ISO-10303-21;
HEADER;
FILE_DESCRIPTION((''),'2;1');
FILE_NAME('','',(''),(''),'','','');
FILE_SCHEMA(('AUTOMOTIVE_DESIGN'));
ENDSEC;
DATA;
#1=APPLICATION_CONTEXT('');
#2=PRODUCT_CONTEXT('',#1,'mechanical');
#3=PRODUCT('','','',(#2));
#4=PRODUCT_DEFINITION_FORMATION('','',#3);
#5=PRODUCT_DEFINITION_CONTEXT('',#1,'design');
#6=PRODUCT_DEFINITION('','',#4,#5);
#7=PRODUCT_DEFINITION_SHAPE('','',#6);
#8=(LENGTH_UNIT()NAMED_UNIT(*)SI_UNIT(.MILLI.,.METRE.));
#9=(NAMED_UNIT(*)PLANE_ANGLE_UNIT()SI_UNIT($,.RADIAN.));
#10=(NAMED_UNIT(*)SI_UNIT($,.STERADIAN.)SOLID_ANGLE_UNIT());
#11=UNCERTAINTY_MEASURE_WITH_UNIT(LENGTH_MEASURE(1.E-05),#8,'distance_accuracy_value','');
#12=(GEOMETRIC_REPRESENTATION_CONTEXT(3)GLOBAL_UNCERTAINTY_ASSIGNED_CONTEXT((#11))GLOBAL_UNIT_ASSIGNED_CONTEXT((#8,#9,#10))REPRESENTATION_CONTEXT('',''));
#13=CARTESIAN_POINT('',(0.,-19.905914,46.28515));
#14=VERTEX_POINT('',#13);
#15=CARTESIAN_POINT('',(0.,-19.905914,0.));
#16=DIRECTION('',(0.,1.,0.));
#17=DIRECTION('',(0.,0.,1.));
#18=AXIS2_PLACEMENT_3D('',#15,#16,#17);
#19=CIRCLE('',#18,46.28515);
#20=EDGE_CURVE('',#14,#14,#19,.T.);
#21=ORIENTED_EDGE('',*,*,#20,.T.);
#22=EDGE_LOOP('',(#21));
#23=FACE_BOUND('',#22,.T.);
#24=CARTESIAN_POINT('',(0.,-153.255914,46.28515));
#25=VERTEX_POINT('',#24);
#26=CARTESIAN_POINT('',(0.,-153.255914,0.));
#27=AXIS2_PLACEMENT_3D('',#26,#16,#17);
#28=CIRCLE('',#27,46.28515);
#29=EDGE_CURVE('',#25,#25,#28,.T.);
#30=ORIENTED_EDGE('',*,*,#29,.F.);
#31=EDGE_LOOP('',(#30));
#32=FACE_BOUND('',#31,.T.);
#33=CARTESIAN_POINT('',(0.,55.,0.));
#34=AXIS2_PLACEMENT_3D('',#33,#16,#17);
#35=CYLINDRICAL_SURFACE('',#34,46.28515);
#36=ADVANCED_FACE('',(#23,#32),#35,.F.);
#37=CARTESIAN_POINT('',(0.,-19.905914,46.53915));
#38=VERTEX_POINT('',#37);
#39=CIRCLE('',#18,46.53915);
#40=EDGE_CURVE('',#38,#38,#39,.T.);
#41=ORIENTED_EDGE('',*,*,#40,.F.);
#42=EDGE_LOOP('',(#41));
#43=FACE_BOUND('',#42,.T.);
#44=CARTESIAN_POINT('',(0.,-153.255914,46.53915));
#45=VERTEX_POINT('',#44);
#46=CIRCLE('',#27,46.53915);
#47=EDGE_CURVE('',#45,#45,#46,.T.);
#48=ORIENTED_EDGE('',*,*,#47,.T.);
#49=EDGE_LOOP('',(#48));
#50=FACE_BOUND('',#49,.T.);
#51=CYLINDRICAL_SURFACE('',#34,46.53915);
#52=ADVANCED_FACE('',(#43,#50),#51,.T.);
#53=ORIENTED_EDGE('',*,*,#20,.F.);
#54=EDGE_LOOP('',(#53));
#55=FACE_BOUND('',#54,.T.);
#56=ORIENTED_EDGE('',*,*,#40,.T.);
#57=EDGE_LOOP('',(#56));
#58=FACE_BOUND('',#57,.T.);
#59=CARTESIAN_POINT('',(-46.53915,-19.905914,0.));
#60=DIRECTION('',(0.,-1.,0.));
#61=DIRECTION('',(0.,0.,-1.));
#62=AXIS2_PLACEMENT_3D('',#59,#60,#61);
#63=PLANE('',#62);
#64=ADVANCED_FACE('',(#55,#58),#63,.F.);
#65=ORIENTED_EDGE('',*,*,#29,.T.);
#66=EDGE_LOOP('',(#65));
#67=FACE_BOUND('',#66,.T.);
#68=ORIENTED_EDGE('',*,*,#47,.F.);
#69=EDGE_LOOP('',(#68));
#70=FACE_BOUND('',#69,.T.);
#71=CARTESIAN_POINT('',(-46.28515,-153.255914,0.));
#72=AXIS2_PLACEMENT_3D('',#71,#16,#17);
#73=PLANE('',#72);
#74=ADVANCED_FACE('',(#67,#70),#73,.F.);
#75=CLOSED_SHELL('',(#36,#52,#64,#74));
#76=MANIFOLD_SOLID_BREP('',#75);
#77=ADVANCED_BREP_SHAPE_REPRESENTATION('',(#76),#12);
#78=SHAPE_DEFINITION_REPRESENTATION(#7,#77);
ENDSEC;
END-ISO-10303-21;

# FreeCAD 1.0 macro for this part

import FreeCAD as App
import Part
import Sketcher
from FreeCAD import Vector
Q = App.Units.Quantity


def add_polygon(sketch, points):
    """Adds a closed chain of lines whose ends are joined by coincident constraints."""
    first, n = sketch.GeometryCount, len(points)
    for a, b in zip(points, points[1:] + points[:1]):
        sketch.addGeometry(Part.LineSegment(App.Vector(*a, 0), App.Vector(*b, 0)), False)
    for i in range(n):
        sketch.addConstraint(Sketcher.Constraint("Coincident", first + i, 2, first + (i + 1) % n, 1))

doc = App.newDocument("Part")
body = doc.addObject("PartDesign::Body", "Body")

# Sketch on XY plane
sketch1 = body.newObject("Sketcher::SketchObject", "Sketch")
sketch1.AttachmentSupport = (doc.getObject("XY_Plane"), [""])
sketch1.MapMode = "FlatFace"
add_polygon(sketch1, [(-46.54, -19.91), (-46.54, -153.26), (-46.29, -153.26), (-46.29, -19.91)])  # lines 0-3
sketch1.addConstraint(Sketcher.Constraint("Vertical", 0))
sketch1.addConstraint(Sketcher.Constraint("Horizontal", 1))
sketch1.addConstraint(Sketcher.Constraint("Vertical", 2))
sketch1.addConstraint(Sketcher.Constraint("Horizontal", 3))
sketch1.addConstraint(Sketcher.Constraint("DistanceX", 1, 1, 1, 2, Q("0.01 in")))
sketch1.addConstraint(Sketcher.Constraint("DistanceY", 0, 2, 0, 1, Q("5.25 in")))
sketch1.addConstraint(Sketcher.Constraint("DistanceX", 0, 2, -1, 1, Q("46.53915 mm")))
sketch1.addConstraint(Sketcher.Constraint("DistanceY", 0, 2, -1, 1, Q("153.255914 mm")))
revolution = body.newObject("PartDesign::Revolution", "Revolution")
revolution.Profile = sketch1
revolution.ReferenceAxis = (sketch1, ["V_Axis"])
revolution.Angle = 360

doc.recompute()
